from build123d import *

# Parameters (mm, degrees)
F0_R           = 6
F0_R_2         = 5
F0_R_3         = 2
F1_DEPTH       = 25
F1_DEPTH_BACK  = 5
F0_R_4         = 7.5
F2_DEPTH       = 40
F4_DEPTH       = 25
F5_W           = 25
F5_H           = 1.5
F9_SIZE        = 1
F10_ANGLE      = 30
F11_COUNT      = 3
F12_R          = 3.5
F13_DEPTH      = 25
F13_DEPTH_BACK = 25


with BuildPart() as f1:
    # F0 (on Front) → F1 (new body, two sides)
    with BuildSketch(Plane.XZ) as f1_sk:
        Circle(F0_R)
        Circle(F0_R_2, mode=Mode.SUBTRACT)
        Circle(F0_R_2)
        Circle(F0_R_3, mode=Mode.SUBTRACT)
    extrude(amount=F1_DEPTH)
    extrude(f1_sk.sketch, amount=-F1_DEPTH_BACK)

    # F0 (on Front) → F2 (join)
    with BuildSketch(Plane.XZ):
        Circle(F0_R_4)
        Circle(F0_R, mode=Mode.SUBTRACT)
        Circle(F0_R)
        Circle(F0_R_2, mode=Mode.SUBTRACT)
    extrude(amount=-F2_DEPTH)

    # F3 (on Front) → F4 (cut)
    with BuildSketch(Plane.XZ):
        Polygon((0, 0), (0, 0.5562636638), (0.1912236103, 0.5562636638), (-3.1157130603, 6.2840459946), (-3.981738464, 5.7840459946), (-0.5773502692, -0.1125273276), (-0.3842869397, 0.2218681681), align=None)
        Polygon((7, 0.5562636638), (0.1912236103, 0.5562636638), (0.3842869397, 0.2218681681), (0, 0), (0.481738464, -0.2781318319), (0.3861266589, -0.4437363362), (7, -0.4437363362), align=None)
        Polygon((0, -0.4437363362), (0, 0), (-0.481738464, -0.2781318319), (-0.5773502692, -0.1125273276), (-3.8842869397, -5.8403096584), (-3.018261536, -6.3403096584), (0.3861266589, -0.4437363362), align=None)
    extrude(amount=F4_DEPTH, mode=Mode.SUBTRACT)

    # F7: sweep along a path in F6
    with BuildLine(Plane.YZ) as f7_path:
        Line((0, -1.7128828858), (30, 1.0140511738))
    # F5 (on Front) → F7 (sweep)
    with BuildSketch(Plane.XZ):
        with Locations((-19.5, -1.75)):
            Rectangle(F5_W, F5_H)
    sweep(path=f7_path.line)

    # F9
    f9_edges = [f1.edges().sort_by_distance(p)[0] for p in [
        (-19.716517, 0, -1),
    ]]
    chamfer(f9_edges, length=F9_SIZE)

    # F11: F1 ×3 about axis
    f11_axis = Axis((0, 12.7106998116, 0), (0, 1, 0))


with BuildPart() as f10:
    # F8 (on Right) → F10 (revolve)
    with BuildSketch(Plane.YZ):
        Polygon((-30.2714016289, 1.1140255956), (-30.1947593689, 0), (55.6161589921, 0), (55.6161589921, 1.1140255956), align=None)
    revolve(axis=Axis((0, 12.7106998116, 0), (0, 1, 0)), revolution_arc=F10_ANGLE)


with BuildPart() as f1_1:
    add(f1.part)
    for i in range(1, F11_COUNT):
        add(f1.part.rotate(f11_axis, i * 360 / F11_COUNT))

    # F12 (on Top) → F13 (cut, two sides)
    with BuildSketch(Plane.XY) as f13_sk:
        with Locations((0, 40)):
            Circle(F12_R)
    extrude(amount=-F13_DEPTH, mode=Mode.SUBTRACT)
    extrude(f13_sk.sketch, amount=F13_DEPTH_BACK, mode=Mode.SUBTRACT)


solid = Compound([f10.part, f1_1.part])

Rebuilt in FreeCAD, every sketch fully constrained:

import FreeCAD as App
import Part
import Sketcher
Q = App.Units.Quantity


def edges_at(feature, points):
    """Names of the edges that pass closest to the given points."""
    edges = feature.Shape.Edges
    near = lambda p: min(range(len(edges)), key=lambda i: edges[i].distToShape(Part.Vertex(*p))[0])
    return sorted({f"Edge{near(p) + 1}" for p in points})

doc = App.newDocument("Part")
body = doc.addObject("PartDesign::Body", "Body")

# Sketch on XZ plane
sketch1 = body.newObject("Sketcher::SketchObject", "Sketch")
sketch1.AttachmentSupport = (doc.getObject("XZ_Plane"), [""])
sketch1.MapMode = "FlatFace"
sketch1.addGeometry(Part.Circle(App.Vector(0, 0, 0), App.Vector(0, 0, 1), 6), False)
sketch1.addGeometry(Part.Circle(App.Vector(0, 0, 0), App.Vector(0, 0, 1), 2), False)
sketch1.addConstraint(Sketcher.Constraint("Coincident", 0, 3, -1, 1))
sketch1.addConstraint(Sketcher.Constraint("Coincident", 1, 3, -1, 1))
sketch1.addConstraint(Sketcher.Constraint("Diameter", 0, Q("12 mm")))
sketch1.addConstraint(Sketcher.Constraint("Diameter", 1, Q("4 mm")))
pad1 = body.newObject("PartDesign::Pad", "Pad")
pad1.Profile = sketch1
pad1.Type = "TwoLengths"
pad1.Length = 25
pad1.Length2 = 5

# Sketch on XZ plane
sketch2 = body.newObject("Sketcher::SketchObject", "Sketch001")
sketch2.AttachmentSupport = (doc.getObject("XZ_Plane"), [""])
sketch2.MapMode = "FlatFace"
sketch2.addGeometry(Part.Circle(App.Vector(0, 0, 0), App.Vector(0, 0, 1), 8), False)
sketch2.addGeometry(Part.Circle(App.Vector(0, 0, 0), App.Vector(0, 0, 1), 5), False)
sketch2.addConstraint(Sketcher.Constraint("Coincident", 0, 3, -1, 1))
sketch2.addConstraint(Sketcher.Constraint("Coincident", 1, 3, -1, 1))
sketch2.addConstraint(Sketcher.Constraint("Diameter", 0, Q("15 mm")))
sketch2.addConstraint(Sketcher.Constraint("Diameter", 1, Q("10 mm")))
pad2 = body.newObject("PartDesign::Pad", "Pad001")
pad2.Profile = sketch2
pad2.Length = 40
pad2.Reversed = True

# Sketch on XZ plane
sketch3 = body.newObject("Sketcher::SketchObject", "Sketch002")
sketch3.AttachmentSupport = (doc.getObject("XZ_Plane"), [""])
sketch3.MapMode = "FlatFace"
sketch3.addGeometry(Part.LineSegment(App.Vector(0, 0, 0), App.Vector(0, 0.56, 0)), False)
sketch3.addGeometry(Part.LineSegment(App.Vector(0, 0.56, 0), App.Vector(0.19, 0.56, 0)), False)
sketch3.addGeometry(Part.LineSegment(App.Vector(0.19, 0.56, 0), App.Vector(-3.12, 6.28, 0)), False)
sketch3.addGeometry(Part.LineSegment(App.Vector(-3.12, 6.28, 0), App.Vector(-3.98, 5.78, 0)), False)
sketch3.addGeometry(Part.LineSegment(App.Vector(-3.98, 5.78, 0), App.Vector(-0.58, -0.11, 0)), False)
sketch3.addGeometry(Part.LineSegment(App.Vector(-0.58, -0.11, 0), App.Vector(-0.38, 0.22, 0)), False)
sketch3.addGeometry(Part.LineSegment(App.Vector(-0.38, 0.22, 0), App.Vector(0, 0, 0)), False)
sketch3.addGeometry(Part.LineSegment(App.Vector(7, 0.56, 0), App.Vector(0.19, 0.56, 0)), False)
sketch3.addGeometry(Part.LineSegment(App.Vector(0.19, 0.56, 0), App.Vector(0.38, 0.22, 0)), False)
sketch3.addGeometry(Part.LineSegment(App.Vector(0.38, 0.22, 0), App.Vector(0, 0, 0)), False)
sketch3.addGeometry(Part.LineSegment(App.Vector(0, 0, 0), App.Vector(0.48, -0.28, 0)), False)
sketch3.addGeometry(Part.LineSegment(App.Vector(0.48, -0.28, 0), App.Vector(0.39, -0.44, 0)), False)
sketch3.addGeometry(Part.LineSegment(App.Vector(0.39, -0.44, 0), App.Vector(7, -0.44, 0)), False)
sketch3.addGeometry(Part.LineSegment(App.Vector(7, -0.44, 0), App.Vector(7, 0.56, 0)), False)
sketch3.addGeometry(Part.LineSegment(App.Vector(0, -0.44, 0), App.Vector(0, 0, 0)), False)
sketch3.addGeometry(Part.LineSegment(App.Vector(0, 0, 0), App.Vector(-0.48, -0.28, 0)), False)
sketch3.addGeometry(Part.LineSegment(App.Vector(-0.48, -0.28, 0), App.Vector(-0.58, -0.11, 0)), False)
sketch3.addGeometry(Part.LineSegment(App.Vector(-0.58, -0.11, 0), App.Vector(-3.88, -5.84, 0)), False)
sketch3.addGeometry(Part.LineSegment(App.Vector(-3.88, -5.84, 0), App.Vector(-3.02, -6.34, 0)), False)
sketch3.addGeometry(Part.LineSegment(App.Vector(-3.02, -6.34, 0), App.Vector(0.39, -0.44, 0)), False)
sketch3.addGeometry(Part.LineSegment(App.Vector(0.39, -0.44, 0), App.Vector(0, -0.44, 0)), False)
sketch3.addConstraint(Sketcher.Constraint("Coincident", 0, 2, 1, 1))
sketch3.addConstraint(Sketcher.Constraint("Coincident", 1, 2, 2, 1))
sketch3.addConstraint(Sketcher.Constraint("Coincident", 2, 2, 3, 1))
sketch3.addConstraint(Sketcher.Constraint("Coincident", 3, 2, 4, 1))
sketch3.addConstraint(Sketcher.Constraint("Coincident", 4, 2, 5, 1))
sketch3.addConstraint(Sketcher.Constraint("Coincident", 5, 2, 6, 1))
sketch3.addConstraint(Sketcher.Constraint("Coincident", 6, 2, 0, 1))
sketch3.addConstraint(Sketcher.Constraint("Coincident", 7, 2, 8, 1))
sketch3.addConstraint(Sketcher.Constraint("Coincident", 8, 2, 9, 1))
sketch3.addConstraint(Sketcher.Constraint("Coincident", 9, 2, 10, 1))
sketch3.addConstraint(Sketcher.Constraint("Coincident", 10, 2, 11, 1))
sketch3.addConstraint(Sketcher.Constraint("Coincident", 11, 2, 12, 1))
sketch3.addConstraint(Sketcher.Constraint("Coincident", 12, 2, 13, 1))
sketch3.addConstraint(Sketcher.Constraint("Coincident", 13, 2, 7, 1))
sketch3.addConstraint(Sketcher.Constraint("Coincident", 14, 2, 15, 1))
sketch3.addConstraint(Sketcher.Constraint("Coincident", 15, 2, 16, 1))
sketch3.addConstraint(Sketcher.Constraint("Coincident", 16, 2, 17, 1))
sketch3.addConstraint(Sketcher.Constraint("Coincident", 17, 2, 18, 1))
sketch3.addConstraint(Sketcher.Constraint("Coincident", 18, 2, 19, 1))
sketch3.addConstraint(Sketcher.Constraint("Coincident", 19, 2, 20, 1))
sketch3.addConstraint(Sketcher.Constraint("Coincident", 20, 2, 14, 1))
sketch3.addConstraint(Sketcher.Constraint("Vertical", 0))
sketch3.addConstraint(Sketcher.Constraint("Horizontal", 1))
sketch3.addConstraint(Sketcher.Constraint("Horizontal", 7))
sketch3.addConstraint(Sketcher.Constraint("Horizontal", 12))
sketch3.addConstraint(Sketcher.Constraint("Vertical", 13))
sketch3.addConstraint(Sketcher.Constraint("Vertical", 14))
sketch3.addConstraint(Sketcher.Constraint("Horizontal", 20))
sketch3.addConstraint(Sketcher.Constraint("Coincident", 6, 2, -1, 1))
sketch3.addConstraint(Sketcher.Constraint("Coincident", 9, 2, -1, 1))
sketch3.addConstraint(Sketcher.Constraint("Coincident", 14, 2, -1, 1))
sketch3.addConstraint(Sketcher.Constraint("Coincident", 7, 2, 1, 2))
sketch3.addConstraint(Sketcher.Constraint("Coincident", 16, 2, 4, 2))
sketch3.addConstraint(Sketcher.Constraint("Coincident", 19, 2, 11, 2))
sketch3.addConstraint(Sketcher.Constraint("Symmetric", 5, 2, 8, 2, -2))
sketch3.addConstraint(Sketcher.Constraint("Symmetric", 10, 2, 15, 2, -2))
sketch3.addConstraint(Sketcher.Constraint("Perpendicular", 2, 3))
sketch3.addConstraint(Sketcher.Constraint("Perpendicular", 3, 4))
sketch3.addConstraint(Sketcher.Constraint("Perpendicular", 5, 6))
sketch3.addConstraint(Sketcher.Constraint("Parallel", 4, 8))
sketch3.addConstraint(Sketcher.Constraint("Perpendicular", 8, 9))
sketch3.addConstraint(Sketcher.Constraint("Parallel", 6, 10))
sketch3.addConstraint(Sketcher.Constraint("Perpendicular", 10, 11))
sketch3.addConstraint(Sketcher.Constraint("Perpendicular", 15, 16))
sketch3.addConstraint(Sketcher.Constraint("Parallel", 11, 17))
sketch3.addConstraint(Sketcher.Constraint("Perpendicular", 17, 18))
sketch3.addConstraint(Sketcher.Constraint("Perpendicular", 18, 19))
sketch3.addConstraint(Sketcher.Constraint("Equal", 5, 8))
sketch3.addConstraint(Sketcher.Constraint("Equal", 11, 16))
sketch3.addConstraint(Sketcher.Constraint("Equal", 2, 17))
sketch3.addConstraint(Sketcher.Constraint("DistanceY", 13, 1, 13, 2, Q("1 mm")))
sketch3.addConstraint(Sketcher.Constraint("Angle", 2, Q("120 deg")))
sketch3.addConstraint(Sketcher.Constraint("DistanceX", -1, 1, 12, 2, Q("7 mm")))
sketch3.addConstraint(Sketcher.Constraint("DistanceX", 17, 2, 5, 2, Q("3.5 mm")))
sketch3.addConstraint(Sketcher.Constraint("DistanceX", 1, 1, 1, 2, Q("0.191224 mm")))
pocket1 = body.newObject("PartDesign::Pocket", "Pocket")
pocket1.Profile = sketch3
pocket1.Length = 25
pocket1.Reversed = True

# Sketch on XZ plane
sketch4 = body.newObject("Sketcher::SketchObject", "Sketch003")
sketch4.AttachmentSupport = (doc.getObject("XZ_Plane"), [""])
sketch4.MapMode = "FlatFace"
sketch4.addGeometry(Part.LineSegment(App.Vector(-32, -1, 0), App.Vector(-32, -2.5, 0)), False)
sketch4.addGeometry(Part.LineSegment(App.Vector(-32, -2.5, 0), App.Vector(-7, -2.5, 0)), False)
sketch4.addGeometry(Part.LineSegment(App.Vector(-7, -2.5, 0), App.Vector(-7, -1, 0)), False)
sketch4.addGeometry(Part.LineSegment(App.Vector(-7, -1, 0), App.Vector(-32, -1, 0)), False)
sketch4.addConstraint(Sketcher.Constraint("Coincident", 0, 2, 1, 1))
sketch4.addConstraint(Sketcher.Constraint("Coincident", 1, 2, 2, 1))
sketch4.addConstraint(Sketcher.Constraint("Coincident", 2, 2, 3, 1))
sketch4.addConstraint(Sketcher.Constraint("Coincident", 3, 2, 0, 1))
sketch4.addConstraint(Sketcher.Constraint("Vertical", 0))
sketch4.addConstraint(Sketcher.Constraint("Horizontal", 1))
sketch4.addConstraint(Sketcher.Constraint("Vertical", 2))
sketch4.addConstraint(Sketcher.Constraint("Horizontal", 3))
sketch4.addConstraint(Sketcher.Constraint("DistanceX", 1, 1, 1, 2, Q("25 mm")))
sketch4.addConstraint(Sketcher.Constraint("DistanceY", 0, 2, 0, 1, Q("1.5 mm")))
sketch4.addConstraint(Sketcher.Constraint("DistanceX", 0, 2, -1, 1, Q("32 mm")))
sketch4.addConstraint(Sketcher.Constraint("DistanceY", 2, 2, -1, 1, Q("1 mm")))

# Sketch on an angled plane
sketch5 = body.newObject("Sketcher::SketchObject", "Sketch004")
sketch5.Placement = App.Placement(App.Vector(0, 0.154421, -1.698846), App.Rotation(App.Vector(0, 0.99589422, 0.090524596), App.Vector(1, 0, 0), App.Vector(0, 0.090524596, -0.99589422), "ZXY"))
sketch5.addGeometry(Part.LineSegment(App.Vector(0, 0, 0), App.Vector(30, 0, 0)), False)
sketch5.addConstraint(Sketcher.Constraint("Horizontal", 0))
sketch5.addConstraint(Sketcher.Constraint("PointOnObject", 0, 1, -1))
sketch5.addConstraint(Sketcher.Constraint("DistanceX", 0, 1, 0, 2, Q("30.123681 mm")))
sketch5.addConstraint(Sketcher.Constraint("DistanceX", 0, 1, -1, 1, Q("0.155058 mm")))
doc.recompute()

additivepipe = body.newObject("PartDesign::AdditivePipe", "AdditivePipe")
additivepipe.Profile = sketch4
additivepipe.Spine = (sketch5, ["Edge1"])
doc.recompute()

chamfer = body.newObject("PartDesign::Chamfer", "Chamfer")
chamfer.Base = (additivepipe, edges_at(additivepipe, [(-19.717, 0, -1)]))
chamfer.Size = 1
body2 = doc.addObject("PartDesign::Body", "Body001")

# Sketch on YZ plane
sketch6 = body2.newObject("Sketcher::SketchObject", "Sketch005")
sketch6.AttachmentSupport = (doc.getObject("YZ_Plane001"), [""])
sketch6.MapMode = "FlatFace"
sketch6.addGeometry(Part.LineSegment(App.Vector(-30.3, 1.1, 0), App.Vector(-30.2, 0, 0)), False)
sketch6.addGeometry(Part.LineSegment(App.Vector(-30.2, 0, 0), App.Vector(55.6, 0, 0)), False)
sketch6.addGeometry(Part.LineSegment(App.Vector(55.6, 0, 0), App.Vector(55.6, 1.1, 0)), False)
sketch6.addGeometry(Part.LineSegment(App.Vector(55.6, 1.1, 0), App.Vector(-30.3, 1.1, 0)), False)
sketch6.addConstraint(Sketcher.Constraint("Coincident", 0, 2, 1, 1))
sketch6.addConstraint(Sketcher.Constraint("Coincident", 1, 2, 2, 1))
sketch6.addConstraint(Sketcher.Constraint("Coincident", 2, 2, 3, 1))
sketch6.addConstraint(Sketcher.Constraint("Coincident", 3, 2, 0, 1))
sketch6.addConstraint(Sketcher.Constraint("Horizontal", 1))
sketch6.addConstraint(Sketcher.Constraint("Vertical", 2))
sketch6.addConstraint(Sketcher.Constraint("Horizontal", 3))
sketch6.addConstraint(Sketcher.Constraint("PointOnObject", 0, 2, -1))
sketch6.addConstraint(Sketcher.Constraint("DistanceX", 1, 1, 1, 2, Q("85.810918 mm")))
sketch6.addConstraint(Sketcher.Constraint("DistanceX", 3, 2, 3, 1, Q("85.887561 mm")))
sketch6.addConstraint(Sketcher.Constraint("DistanceX", 3, 2, -1, 1, Q("30.271402 mm")))
sketch6.addConstraint(Sketcher.Constraint("Distance", 0, Q("1.116659 mm")))
revolution = body2.newObject("PartDesign::Revolution", "Revolution")
revolution.Profile = sketch6
revolution.ReferenceAxis = (sketch6, ["H_Axis"])
revolution.Angle = 30
body3 = doc.addObject("PartDesign::Body", "Body002")
doc.recompute()

body3.BaseFeature = body
doc.recompute()

body4 = doc.addObject("PartDesign::Body", "Body003")
body4.BaseFeature = body
body4.Placement = App.Placement(App.Vector(0, 0, 0), App.Rotation(App.Vector(0, 1, 0), 120))
boolean = body3.newObject("PartDesign::Boolean", "Boolean")
boolean.Type = "Fuse"
boolean.addObjects([body4])
doc.recompute()

body.Placement = App.Placement(App.Vector(0, 0, 0), App.Rotation(App.Vector(0, 1, 0), 240))
boolean2 = body3.newObject("PartDesign::Boolean", "Boolean001")
boolean2.Type = "Fuse"
boolean2.addObjects([body])

# Sketch on XY plane
sketch7 = body3.newObject("Sketcher::SketchObject", "Sketch006")
sketch7.AttachmentSupport = (doc.getObject("XY_Plane002"), [""])
sketch7.MapMode = "FlatFace"
sketch7.addGeometry(Part.Circle(App.Vector(0, 40, 0), App.Vector(0, 0, 1), 3.5), False)
sketch7.addConstraint(Sketcher.Constraint("PointOnObject", 0, 3, -2))
sketch7.addConstraint(Sketcher.Constraint("Diameter", 0, Q("7 mm")))
sketch7.addConstraint(Sketcher.Constraint("DistanceY", -1, 1, 0, 3, Q("40 mm")))
pocket2 = body3.newObject("PartDesign::Pocket", "Pocket001")
pocket2.Profile = sketch7
pocket2.Type = "ThroughAll"
pocket2.Midplane = True

doc.recompute()
